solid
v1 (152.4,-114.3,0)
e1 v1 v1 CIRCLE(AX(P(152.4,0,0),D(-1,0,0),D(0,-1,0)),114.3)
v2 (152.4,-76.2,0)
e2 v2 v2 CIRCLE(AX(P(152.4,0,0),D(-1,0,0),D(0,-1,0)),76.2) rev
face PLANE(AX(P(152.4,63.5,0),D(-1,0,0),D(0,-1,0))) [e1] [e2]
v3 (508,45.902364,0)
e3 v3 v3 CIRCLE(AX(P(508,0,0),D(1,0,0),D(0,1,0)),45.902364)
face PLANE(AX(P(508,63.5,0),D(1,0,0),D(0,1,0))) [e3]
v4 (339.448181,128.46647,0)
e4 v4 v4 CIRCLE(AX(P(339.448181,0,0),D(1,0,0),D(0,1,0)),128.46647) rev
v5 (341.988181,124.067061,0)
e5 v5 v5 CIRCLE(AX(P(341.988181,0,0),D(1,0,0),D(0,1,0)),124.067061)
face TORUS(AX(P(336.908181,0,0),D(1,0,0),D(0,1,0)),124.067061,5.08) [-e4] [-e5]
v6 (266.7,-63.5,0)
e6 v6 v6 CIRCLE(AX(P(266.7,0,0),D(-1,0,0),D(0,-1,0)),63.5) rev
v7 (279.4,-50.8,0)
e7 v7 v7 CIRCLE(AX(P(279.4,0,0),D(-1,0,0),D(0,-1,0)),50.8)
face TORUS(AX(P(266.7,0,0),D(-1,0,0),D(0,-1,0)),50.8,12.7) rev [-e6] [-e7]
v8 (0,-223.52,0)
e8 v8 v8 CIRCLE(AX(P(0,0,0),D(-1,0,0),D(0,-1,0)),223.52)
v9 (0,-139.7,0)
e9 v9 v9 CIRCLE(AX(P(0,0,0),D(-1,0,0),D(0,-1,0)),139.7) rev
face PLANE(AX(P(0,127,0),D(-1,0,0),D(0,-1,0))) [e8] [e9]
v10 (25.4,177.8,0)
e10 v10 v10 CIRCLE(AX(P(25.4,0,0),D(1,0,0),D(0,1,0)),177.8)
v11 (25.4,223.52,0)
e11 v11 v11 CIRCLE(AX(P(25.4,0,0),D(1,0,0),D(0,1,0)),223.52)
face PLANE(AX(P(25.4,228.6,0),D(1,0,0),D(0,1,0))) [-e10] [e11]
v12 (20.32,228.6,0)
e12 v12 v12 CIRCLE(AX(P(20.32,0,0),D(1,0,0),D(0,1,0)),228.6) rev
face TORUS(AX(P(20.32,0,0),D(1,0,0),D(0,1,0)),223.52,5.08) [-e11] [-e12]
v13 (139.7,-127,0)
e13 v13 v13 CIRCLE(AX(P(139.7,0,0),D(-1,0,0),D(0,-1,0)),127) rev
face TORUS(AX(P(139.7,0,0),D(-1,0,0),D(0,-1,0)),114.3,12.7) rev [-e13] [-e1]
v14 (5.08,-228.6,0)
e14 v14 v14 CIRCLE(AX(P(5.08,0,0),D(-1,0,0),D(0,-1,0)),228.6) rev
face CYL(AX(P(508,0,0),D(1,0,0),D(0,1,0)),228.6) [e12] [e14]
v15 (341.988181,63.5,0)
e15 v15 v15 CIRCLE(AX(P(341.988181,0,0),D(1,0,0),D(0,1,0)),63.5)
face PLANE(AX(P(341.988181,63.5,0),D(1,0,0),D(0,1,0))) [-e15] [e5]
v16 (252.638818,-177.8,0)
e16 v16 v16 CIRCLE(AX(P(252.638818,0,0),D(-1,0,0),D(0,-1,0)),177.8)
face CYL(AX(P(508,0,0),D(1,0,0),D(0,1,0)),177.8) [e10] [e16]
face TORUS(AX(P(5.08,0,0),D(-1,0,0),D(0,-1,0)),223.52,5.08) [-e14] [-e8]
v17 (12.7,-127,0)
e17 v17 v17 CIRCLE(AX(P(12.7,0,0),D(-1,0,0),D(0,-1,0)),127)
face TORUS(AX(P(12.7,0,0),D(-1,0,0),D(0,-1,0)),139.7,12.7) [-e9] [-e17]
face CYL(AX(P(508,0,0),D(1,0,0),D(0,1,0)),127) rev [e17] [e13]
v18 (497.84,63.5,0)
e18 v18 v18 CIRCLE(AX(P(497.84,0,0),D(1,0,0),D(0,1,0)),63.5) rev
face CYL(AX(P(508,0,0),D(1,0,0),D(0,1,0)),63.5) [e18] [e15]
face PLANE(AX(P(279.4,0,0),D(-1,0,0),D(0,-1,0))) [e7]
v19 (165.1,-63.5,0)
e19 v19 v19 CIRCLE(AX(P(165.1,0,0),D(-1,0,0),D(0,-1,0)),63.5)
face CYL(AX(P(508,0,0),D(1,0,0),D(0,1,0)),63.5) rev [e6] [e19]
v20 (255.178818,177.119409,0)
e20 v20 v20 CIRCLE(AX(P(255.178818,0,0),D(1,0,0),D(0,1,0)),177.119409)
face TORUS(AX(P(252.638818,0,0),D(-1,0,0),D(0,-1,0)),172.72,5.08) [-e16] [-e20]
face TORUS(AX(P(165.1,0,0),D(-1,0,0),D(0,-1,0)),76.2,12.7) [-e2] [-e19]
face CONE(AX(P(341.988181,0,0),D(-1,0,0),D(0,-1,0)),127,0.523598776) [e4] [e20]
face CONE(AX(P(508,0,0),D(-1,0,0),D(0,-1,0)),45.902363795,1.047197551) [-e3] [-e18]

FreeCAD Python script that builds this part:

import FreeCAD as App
import Part
import Sketcher
from FreeCAD import Vector
Q = App.Units.Quantity


def edges_at(feature, points):
    """Names of the edges that pass closest to the given points."""
    edges = feature.Shape.Edges
    near = lambda p: min(range(len(edges)), key=lambda i: edges[i].distToShape(Part.Vertex(*p))[0])
    return sorted({f"Edge{near(p) + 1}" for p in points})

doc = App.newDocument("Part")
body = doc.addObject("PartDesign::Body", "Body")

sketch1 = doc.addObject("Sketcher::SketchObject", "Sketch")
body.addObject(sketch1)
sketch1.AttachmentSupport = (doc.XY_Plane, [""])
sketch1.MapMode = "FlatFace"
sketch1.addGeometry(Part.LineSegment(Vector(25, 229, 0), Vector(0, 229, 0)), False)
sketch1.addGeometry(Part.LineSegment(Vector(0, 229, 0), Vector(0, 127, 0)), False)
sketch1.addGeometry(Part.LineSegment(Vector(0, 127, 0), Vector(152, 127, 0)), False)
sketch1.addGeometry(Part.LineSegment(Vector(152, 127, 0), Vector(152, 64, 0)), False)
sketch1.addGeometry(Part.LineSegment(Vector(152, 64, 0), Vector(279, 64, 0)), False)
sketch1.addGeometry(Part.LineSegment(Vector(279, 64, 0), Vector(279, 0, 0)), False)
sketch1.addGeometry(Part.LineSegment(Vector(279, 0, 0), Vector(508, 0, 0)), False)
sketch1.addGeometry(Part.LineSegment(Vector(508, 0, 0), Vector(508, 64, 0)), False)
sketch1.addGeometry(Part.LineSegment(Vector(508, 64, 0), Vector(342, 64, 0)), False)
sketch1.addGeometry(Part.LineSegment(Vector(342, 64, 0), Vector(342, 127, 0)), False)
sketch1.addGeometry(Part.LineSegment(Vector(342, 127, 0), Vector(254, 178, 0)), False)
sketch1.addGeometry(Part.LineSegment(Vector(254, 178, 0), Vector(25, 178, 0)), False)
sketch1.addGeometry(Part.LineSegment(Vector(25, 178, 0), Vector(25, 229, 0)), False)
sketch1.addConstraint(Sketcher.Constraint("Coincident", 0, 2, 1, 1))
sketch1.addConstraint(Sketcher.Constraint("Coincident", 1, 2, 2, 1))
sketch1.addConstraint(Sketcher.Constraint("Coincident", 2, 2, 3, 1))
sketch1.addConstraint(Sketcher.Constraint("Coincident", 3, 2, 4, 1))
sketch1.addConstraint(Sketcher.Constraint("Coincident", 4, 2, 5, 1))
sketch1.addConstraint(Sketcher.Constraint("Coincident", 5, 2, 6, 1))
sketch1.addConstraint(Sketcher.Constraint("Coincident", 6, 2, 7, 1))
sketch1.addConstraint(Sketcher.Constraint("Coincident", 7, 2, 8, 1))
sketch1.addConstraint(Sketcher.Constraint("Coincident", 8, 2, 9, 1))
sketch1.addConstraint(Sketcher.Constraint("Coincident", 9, 2, 10, 1))
sketch1.addConstraint(Sketcher.Constraint("Coincident", 10, 2, 11, 1))
sketch1.addConstraint(Sketcher.Constraint("Coincident", 11, 2, 12, 1))
sketch1.addConstraint(Sketcher.Constraint("Coincident", 12, 2, 0, 1))
sketch1.addConstraint(Sketcher.Constraint("Horizontal", 0))
sketch1.addConstraint(Sketcher.Constraint("Vertical", 1))
sketch1.addConstraint(Sketcher.Constraint("Horizontal", 2))
sketch1.addConstraint(Sketcher.Constraint("Vertical", 3))
sketch1.addConstraint(Sketcher.Constraint("Horizontal", 4))
sketch1.addConstraint(Sketcher.Constraint("Vertical", 5))
sketch1.addConstraint(Sketcher.Constraint("Horizontal", 6))
sketch1.addConstraint(Sketcher.Constraint("Vertical", 7))
sketch1.addConstraint(Sketcher.Constraint("Horizontal", 8))
sketch1.addConstraint(Sketcher.Constraint("Vertical", 9))
sketch1.addConstraint(Sketcher.Constraint("Horizontal", 11))
sketch1.addConstraint(Sketcher.Constraint("Vertical", 12))
sketch1.addConstraint(Sketcher.Constraint("PointOnObject", 0, 2, -2))
sketch1.addConstraint(Sketcher.Constraint("PointOnObject", 5, 2, -1))
sketch1.addConstraint(Sketcher.Constraint("Horizontal", 4, 2, 7, 2))
sketch1.addConstraint(Sketcher.Constraint("Horizontal", 2, 2, 9, 2))
sketch1.addConstraint(Sketcher.Constraint("Equal", 6, 11))
sketch1.addConstraint(Sketcher.Constraint("Equal", 3, 5))
sketch1.addConstraint(Sketcher.Constraint("DistanceX", 0, 2, 0, 1, Q("1 in")))
sketch1.addConstraint(Sketcher.Constraint("DistanceX", 2, 1, 2, 2, Q("6 in")))
sketch1.addConstraint(Sketcher.Constraint("DistanceX", 4, 1, 4, 2, Q("5 in")))
sketch1.addConstraint(Sketcher.Constraint("DistanceX", 6, 1, 6, 2, Q("9 in")))
sketch1.addConstraint(Sketcher.Constraint("DistanceY", 1, 2, 1, 1, Q("4 in")))
sketch1.addConstraint(Sketcher.Constraint("DistanceY", 12, 1, 12, 2, Q("2 in")))
sketch1.addConstraint(Sketcher.Constraint("Distance", 10, Q("4 in")))
sketch1.addConstraint(Sketcher.Constraint("DistanceY", 3, 2, 3, 1, Q("2.5 in")))
revolution = doc.addObject("PartDesign::Revolution", "Revolution")
body.addObject(revolution)
revolution.Profile = sketch1
revolution.ReferenceAxis = (sketch1, ["H_Axis"])
revolution.Angle = 360
doc.recompute()

fillet = doc.addObject("PartDesign::Fillet", "Fillet")
body.addObject(fillet)
fillet.Base = (revolution, edges_at(revolution, [
    (341.988, -127, 0),
    (254, -177.8, 0),
    (25.4, -228.6, 0),
    (0, -228.6, 0),
]))
fillet.Radius = Q("0.2 in")
doc.recompute()

fillet2 = doc.addObject("PartDesign::Fillet", "Fillet001")
body.addObject(fillet2)
fillet2.Base = (fillet, edges_at(fillet, [
    (0, -127, 0),
    (152.4, -127, 0),
    (152.4, -63.5, 0),
    (279.4, -63.5, 0),
]))
fillet2.Radius = Q("0.5 in")
doc.recompute()

chamfer = doc.addObject("PartDesign::Chamfer", "Chamfer")
body.addObject(chamfer)
chamfer.Base = (fillet2, edges_at(fillet2, [(508, -63.5, 0)]))
chamfer.ChamferType = "Two distances"
chamfer.Size = Q("0.4 in")
chamfer.Size2 = 17.597636

doc.recompute()
